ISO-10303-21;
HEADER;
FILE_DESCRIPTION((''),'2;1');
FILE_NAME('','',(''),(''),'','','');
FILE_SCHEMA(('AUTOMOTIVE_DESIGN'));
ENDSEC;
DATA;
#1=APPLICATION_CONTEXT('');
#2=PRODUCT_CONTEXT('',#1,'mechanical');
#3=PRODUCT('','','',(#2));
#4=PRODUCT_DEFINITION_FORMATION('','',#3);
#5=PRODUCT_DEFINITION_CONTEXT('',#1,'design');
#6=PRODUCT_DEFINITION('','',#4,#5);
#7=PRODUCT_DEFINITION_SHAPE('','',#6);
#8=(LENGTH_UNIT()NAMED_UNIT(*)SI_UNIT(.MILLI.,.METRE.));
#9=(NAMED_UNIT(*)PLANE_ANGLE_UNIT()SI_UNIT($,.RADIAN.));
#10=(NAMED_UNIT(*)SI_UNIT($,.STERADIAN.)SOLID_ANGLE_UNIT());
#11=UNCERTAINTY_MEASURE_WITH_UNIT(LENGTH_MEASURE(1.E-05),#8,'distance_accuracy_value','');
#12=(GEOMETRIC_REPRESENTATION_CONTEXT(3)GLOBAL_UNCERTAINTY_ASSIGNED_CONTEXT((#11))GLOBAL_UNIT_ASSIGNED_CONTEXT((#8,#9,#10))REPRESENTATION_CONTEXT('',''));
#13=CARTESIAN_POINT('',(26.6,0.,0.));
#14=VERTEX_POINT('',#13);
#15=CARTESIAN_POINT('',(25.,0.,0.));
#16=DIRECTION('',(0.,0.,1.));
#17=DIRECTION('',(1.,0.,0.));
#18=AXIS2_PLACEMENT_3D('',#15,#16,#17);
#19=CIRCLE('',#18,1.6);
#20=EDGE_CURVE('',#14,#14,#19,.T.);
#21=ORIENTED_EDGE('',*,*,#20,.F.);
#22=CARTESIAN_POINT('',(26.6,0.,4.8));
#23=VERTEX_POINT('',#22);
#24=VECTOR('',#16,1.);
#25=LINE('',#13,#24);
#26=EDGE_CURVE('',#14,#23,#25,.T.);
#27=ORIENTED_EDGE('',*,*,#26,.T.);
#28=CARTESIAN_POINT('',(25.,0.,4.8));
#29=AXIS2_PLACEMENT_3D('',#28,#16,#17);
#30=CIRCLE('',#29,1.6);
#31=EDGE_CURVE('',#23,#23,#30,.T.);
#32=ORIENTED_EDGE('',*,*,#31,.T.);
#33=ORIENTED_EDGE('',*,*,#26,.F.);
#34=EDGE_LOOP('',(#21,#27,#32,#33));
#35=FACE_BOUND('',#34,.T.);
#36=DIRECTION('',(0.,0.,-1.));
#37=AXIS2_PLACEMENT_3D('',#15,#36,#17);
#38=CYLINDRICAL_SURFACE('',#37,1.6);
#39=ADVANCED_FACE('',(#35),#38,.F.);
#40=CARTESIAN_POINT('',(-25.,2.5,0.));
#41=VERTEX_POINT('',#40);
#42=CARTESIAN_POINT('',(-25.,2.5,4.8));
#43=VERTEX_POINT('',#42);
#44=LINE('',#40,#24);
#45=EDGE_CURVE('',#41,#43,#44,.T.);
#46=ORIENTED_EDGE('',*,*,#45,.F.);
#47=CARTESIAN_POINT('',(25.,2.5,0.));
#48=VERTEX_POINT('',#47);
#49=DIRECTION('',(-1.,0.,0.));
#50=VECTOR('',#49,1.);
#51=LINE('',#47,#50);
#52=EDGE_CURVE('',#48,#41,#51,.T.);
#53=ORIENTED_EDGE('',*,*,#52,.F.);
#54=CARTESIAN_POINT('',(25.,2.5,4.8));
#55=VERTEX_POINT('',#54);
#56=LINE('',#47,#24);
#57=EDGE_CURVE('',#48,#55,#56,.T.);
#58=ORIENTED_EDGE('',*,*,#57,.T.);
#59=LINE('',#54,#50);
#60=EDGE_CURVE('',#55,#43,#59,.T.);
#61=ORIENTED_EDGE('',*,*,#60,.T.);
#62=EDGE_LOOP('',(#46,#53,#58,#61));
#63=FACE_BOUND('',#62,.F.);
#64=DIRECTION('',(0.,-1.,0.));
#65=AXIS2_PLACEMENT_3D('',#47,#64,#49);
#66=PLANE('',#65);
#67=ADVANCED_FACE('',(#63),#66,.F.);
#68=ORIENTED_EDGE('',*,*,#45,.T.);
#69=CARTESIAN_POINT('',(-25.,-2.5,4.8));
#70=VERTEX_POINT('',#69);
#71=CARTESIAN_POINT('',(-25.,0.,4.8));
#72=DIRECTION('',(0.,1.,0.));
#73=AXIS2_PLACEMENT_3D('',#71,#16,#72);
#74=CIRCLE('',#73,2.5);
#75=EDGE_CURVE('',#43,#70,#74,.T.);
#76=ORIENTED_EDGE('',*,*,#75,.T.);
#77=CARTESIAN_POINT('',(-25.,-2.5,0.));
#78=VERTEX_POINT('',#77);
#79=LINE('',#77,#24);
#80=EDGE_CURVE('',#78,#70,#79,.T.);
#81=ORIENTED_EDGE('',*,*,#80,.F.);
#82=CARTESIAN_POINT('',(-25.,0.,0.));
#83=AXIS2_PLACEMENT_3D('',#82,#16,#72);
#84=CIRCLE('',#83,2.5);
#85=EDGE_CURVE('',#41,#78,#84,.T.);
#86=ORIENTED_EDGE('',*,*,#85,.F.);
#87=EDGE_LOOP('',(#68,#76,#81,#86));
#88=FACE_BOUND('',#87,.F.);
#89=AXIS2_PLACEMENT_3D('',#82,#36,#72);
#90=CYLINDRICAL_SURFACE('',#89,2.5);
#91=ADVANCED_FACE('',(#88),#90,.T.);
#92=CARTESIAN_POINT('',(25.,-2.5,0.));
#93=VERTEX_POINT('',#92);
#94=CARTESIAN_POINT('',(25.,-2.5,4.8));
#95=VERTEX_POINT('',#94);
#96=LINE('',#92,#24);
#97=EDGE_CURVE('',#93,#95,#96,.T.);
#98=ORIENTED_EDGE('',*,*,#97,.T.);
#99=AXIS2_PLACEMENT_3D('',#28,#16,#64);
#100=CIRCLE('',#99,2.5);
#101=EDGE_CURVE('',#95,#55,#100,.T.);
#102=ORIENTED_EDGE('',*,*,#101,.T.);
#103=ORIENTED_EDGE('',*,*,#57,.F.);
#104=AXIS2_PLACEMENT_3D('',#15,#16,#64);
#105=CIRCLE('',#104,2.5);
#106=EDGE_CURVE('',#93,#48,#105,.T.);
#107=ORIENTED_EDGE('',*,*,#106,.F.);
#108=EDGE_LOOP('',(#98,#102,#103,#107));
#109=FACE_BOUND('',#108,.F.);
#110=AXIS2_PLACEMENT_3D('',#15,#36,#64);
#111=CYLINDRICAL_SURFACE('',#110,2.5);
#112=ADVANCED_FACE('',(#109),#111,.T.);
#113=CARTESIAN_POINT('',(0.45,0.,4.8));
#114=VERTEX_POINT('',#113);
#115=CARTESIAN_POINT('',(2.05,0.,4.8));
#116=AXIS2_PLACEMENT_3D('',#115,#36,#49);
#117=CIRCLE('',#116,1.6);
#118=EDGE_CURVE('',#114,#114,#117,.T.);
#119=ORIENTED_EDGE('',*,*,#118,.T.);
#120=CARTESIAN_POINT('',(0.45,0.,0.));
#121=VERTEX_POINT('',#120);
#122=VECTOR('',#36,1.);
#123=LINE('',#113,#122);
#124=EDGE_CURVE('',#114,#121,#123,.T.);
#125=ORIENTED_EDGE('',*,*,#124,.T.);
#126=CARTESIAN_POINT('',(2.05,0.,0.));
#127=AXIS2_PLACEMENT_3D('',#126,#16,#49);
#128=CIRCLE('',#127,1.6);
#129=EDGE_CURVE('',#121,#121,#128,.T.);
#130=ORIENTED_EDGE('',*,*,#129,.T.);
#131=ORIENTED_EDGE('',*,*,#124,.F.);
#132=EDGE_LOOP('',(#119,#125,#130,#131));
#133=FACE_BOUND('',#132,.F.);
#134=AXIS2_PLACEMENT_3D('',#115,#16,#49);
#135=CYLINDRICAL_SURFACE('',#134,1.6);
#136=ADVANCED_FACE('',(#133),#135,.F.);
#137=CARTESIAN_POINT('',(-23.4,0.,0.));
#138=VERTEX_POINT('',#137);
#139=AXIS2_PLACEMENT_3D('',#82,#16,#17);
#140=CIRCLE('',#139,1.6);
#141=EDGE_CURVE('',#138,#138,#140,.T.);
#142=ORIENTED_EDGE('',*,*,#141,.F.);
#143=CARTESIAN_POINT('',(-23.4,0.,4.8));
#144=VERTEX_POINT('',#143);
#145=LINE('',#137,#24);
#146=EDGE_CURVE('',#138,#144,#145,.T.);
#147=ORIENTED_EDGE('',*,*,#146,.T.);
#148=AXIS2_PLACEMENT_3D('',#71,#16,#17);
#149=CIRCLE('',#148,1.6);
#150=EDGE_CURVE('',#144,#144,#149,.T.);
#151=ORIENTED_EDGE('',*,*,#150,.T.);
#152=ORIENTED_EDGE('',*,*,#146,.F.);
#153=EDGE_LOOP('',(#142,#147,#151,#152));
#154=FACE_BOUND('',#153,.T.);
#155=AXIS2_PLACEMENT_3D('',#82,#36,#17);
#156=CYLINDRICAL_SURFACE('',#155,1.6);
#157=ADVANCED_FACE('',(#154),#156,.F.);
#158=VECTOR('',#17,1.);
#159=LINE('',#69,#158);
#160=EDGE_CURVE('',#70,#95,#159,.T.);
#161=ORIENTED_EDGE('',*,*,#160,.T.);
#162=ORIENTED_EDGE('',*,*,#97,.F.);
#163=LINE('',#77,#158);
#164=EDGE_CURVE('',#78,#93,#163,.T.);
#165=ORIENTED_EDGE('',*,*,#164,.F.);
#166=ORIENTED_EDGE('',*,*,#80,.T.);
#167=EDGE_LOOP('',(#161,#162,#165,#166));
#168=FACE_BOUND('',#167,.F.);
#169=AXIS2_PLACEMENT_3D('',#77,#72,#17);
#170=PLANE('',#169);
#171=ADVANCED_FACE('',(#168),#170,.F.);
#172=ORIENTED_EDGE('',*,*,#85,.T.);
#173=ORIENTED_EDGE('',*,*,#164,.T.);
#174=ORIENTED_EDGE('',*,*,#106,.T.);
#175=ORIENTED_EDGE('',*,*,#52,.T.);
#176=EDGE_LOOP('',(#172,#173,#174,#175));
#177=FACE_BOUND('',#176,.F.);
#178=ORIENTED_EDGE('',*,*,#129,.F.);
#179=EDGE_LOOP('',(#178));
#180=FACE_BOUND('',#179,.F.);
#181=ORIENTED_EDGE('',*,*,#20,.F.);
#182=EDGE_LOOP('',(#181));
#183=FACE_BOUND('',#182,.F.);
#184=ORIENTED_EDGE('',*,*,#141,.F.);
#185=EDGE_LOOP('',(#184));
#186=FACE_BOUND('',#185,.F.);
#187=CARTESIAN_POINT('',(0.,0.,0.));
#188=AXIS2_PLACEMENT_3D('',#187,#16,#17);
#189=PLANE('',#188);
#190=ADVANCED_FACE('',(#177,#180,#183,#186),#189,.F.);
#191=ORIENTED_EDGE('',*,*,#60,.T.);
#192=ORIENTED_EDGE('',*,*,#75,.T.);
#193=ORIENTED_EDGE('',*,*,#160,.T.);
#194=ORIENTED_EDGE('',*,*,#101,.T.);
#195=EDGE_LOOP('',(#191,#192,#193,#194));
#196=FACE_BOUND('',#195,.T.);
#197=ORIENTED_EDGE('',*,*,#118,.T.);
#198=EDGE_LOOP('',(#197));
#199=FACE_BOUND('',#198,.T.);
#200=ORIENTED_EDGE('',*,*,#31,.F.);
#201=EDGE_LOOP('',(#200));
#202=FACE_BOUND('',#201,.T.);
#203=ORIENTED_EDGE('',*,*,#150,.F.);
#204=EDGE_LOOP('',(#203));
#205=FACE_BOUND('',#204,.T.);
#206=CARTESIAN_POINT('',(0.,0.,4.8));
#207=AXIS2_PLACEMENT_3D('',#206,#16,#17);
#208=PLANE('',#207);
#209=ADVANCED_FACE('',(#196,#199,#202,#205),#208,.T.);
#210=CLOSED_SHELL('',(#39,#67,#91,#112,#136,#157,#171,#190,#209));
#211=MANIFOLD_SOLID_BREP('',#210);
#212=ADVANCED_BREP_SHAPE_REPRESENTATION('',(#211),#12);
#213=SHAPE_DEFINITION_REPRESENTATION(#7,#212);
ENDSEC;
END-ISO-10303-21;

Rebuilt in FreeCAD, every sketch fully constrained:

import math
import FreeCAD as App
import Part
import Sketcher
from FreeCAD import Vector

doc = App.newDocument("Part")
body = doc.addObject("PartDesign::Body", "Body")

sketch1 = body.newObject("Sketcher::SketchObject", "Sketch")
sketch1.AttachmentSupport = (doc.getObject("XY_Plane"), [""])
sketch1.MapMode = "FlatFace"
sketch1.addGeometry(Part.ArcOfCircle(Part.Circle(Vector(-25, 0, 0), Vector(0, 0, 1), 2.5), math.radians(90), math.radians(270)), False)
sketch1.addGeometry(Part.LineSegment(Vector(-25, -2.5, 0), Vector(25, -2.5, 0)), False)
sketch1.addGeometry(Part.ArcOfCircle(Part.Circle(Vector(25, 0, 0), Vector(0, 0, 1), 2.5), math.radians(-90), math.radians(90)), False)
sketch1.addGeometry(Part.LineSegment(Vector(25, 2.5, 0), Vector(-25, 2.5, 0)), False)
sketch1.addGeometry(Part.Circle(Vector(-25, 0, 0), Vector(0, 0, 1), 1.6), False)
sketch1.addGeometry(Part.Circle(Vector(25, 0, 0), Vector(0, 0, 1), 1.6), False)
sketch1.addConstraint(Sketcher.Constraint("Tangent", 0, 2, 1, 1))
sketch1.addConstraint(Sketcher.Constraint("Tangent", 1, 2, 2, 1))
sketch1.addConstraint(Sketcher.Constraint("Tangent", 2, 2, 3, 1))
sketch1.addConstraint(Sketcher.Constraint("Tangent", 3, 2, 0, 1))
sketch1.addConstraint(Sketcher.Constraint("Horizontal", 1))
sketch1.addConstraint(Sketcher.Constraint("Horizontal", 3))
sketch1.addConstraint(Sketcher.Constraint("Coincident", 4, 3, 0, 3))
sketch1.addConstraint(Sketcher.Constraint("Coincident", 5, 3, 2, 3))
sketch1.addConstraint(Sketcher.Constraint("Equal", 4, 5))
sketch1.addConstraint(Sketcher.Constraint("Symmetric", 0, 3, 2, 3, -1, 1))
sketch1.addConstraint(Sketcher.Constraint("Diameter", 4, 3.2))
sketch1.addConstraint(Sketcher.Constraint("Radius", 0, 2.5))
sketch1.addConstraint(Sketcher.Constraint("DistanceX", 1, 1, 1, 2, 50.0))
pad1 = body.newObject("PartDesign::Pad", "Pad")
pad1.Profile = sketch1
pad1.Length = 4.8

sketch2 = body.newObject("Sketcher::SketchObject", "Sketch001")
sketch2.AttachmentSupport = (doc.getObject("XY_Plane"), [""])
sketch2.MapMode = "FlatFace"
sketch2.AttachmentOffset = App.Placement(Vector(0, 0, 4.8), App.Rotation())
sketch2.addGeometry(Part.Circle(Vector(2, 0, 0), Vector(0, 0, 1), 1.6), False)
sketch2.addConstraint(Sketcher.Constraint("PointOnObject", 0, 3, -1))
sketch2.addConstraint(Sketcher.Constraint("Diameter", 0, 3.2))
sketch2.addConstraint(Sketcher.Constraint("DistanceX", -1, 1, 0, 3, 2.05))
pocket1 = body.newObject("PartDesign::Pocket", "Pocket")
pocket1.Profile = sketch2
pocket1.Length = 5

doc.recompute()
